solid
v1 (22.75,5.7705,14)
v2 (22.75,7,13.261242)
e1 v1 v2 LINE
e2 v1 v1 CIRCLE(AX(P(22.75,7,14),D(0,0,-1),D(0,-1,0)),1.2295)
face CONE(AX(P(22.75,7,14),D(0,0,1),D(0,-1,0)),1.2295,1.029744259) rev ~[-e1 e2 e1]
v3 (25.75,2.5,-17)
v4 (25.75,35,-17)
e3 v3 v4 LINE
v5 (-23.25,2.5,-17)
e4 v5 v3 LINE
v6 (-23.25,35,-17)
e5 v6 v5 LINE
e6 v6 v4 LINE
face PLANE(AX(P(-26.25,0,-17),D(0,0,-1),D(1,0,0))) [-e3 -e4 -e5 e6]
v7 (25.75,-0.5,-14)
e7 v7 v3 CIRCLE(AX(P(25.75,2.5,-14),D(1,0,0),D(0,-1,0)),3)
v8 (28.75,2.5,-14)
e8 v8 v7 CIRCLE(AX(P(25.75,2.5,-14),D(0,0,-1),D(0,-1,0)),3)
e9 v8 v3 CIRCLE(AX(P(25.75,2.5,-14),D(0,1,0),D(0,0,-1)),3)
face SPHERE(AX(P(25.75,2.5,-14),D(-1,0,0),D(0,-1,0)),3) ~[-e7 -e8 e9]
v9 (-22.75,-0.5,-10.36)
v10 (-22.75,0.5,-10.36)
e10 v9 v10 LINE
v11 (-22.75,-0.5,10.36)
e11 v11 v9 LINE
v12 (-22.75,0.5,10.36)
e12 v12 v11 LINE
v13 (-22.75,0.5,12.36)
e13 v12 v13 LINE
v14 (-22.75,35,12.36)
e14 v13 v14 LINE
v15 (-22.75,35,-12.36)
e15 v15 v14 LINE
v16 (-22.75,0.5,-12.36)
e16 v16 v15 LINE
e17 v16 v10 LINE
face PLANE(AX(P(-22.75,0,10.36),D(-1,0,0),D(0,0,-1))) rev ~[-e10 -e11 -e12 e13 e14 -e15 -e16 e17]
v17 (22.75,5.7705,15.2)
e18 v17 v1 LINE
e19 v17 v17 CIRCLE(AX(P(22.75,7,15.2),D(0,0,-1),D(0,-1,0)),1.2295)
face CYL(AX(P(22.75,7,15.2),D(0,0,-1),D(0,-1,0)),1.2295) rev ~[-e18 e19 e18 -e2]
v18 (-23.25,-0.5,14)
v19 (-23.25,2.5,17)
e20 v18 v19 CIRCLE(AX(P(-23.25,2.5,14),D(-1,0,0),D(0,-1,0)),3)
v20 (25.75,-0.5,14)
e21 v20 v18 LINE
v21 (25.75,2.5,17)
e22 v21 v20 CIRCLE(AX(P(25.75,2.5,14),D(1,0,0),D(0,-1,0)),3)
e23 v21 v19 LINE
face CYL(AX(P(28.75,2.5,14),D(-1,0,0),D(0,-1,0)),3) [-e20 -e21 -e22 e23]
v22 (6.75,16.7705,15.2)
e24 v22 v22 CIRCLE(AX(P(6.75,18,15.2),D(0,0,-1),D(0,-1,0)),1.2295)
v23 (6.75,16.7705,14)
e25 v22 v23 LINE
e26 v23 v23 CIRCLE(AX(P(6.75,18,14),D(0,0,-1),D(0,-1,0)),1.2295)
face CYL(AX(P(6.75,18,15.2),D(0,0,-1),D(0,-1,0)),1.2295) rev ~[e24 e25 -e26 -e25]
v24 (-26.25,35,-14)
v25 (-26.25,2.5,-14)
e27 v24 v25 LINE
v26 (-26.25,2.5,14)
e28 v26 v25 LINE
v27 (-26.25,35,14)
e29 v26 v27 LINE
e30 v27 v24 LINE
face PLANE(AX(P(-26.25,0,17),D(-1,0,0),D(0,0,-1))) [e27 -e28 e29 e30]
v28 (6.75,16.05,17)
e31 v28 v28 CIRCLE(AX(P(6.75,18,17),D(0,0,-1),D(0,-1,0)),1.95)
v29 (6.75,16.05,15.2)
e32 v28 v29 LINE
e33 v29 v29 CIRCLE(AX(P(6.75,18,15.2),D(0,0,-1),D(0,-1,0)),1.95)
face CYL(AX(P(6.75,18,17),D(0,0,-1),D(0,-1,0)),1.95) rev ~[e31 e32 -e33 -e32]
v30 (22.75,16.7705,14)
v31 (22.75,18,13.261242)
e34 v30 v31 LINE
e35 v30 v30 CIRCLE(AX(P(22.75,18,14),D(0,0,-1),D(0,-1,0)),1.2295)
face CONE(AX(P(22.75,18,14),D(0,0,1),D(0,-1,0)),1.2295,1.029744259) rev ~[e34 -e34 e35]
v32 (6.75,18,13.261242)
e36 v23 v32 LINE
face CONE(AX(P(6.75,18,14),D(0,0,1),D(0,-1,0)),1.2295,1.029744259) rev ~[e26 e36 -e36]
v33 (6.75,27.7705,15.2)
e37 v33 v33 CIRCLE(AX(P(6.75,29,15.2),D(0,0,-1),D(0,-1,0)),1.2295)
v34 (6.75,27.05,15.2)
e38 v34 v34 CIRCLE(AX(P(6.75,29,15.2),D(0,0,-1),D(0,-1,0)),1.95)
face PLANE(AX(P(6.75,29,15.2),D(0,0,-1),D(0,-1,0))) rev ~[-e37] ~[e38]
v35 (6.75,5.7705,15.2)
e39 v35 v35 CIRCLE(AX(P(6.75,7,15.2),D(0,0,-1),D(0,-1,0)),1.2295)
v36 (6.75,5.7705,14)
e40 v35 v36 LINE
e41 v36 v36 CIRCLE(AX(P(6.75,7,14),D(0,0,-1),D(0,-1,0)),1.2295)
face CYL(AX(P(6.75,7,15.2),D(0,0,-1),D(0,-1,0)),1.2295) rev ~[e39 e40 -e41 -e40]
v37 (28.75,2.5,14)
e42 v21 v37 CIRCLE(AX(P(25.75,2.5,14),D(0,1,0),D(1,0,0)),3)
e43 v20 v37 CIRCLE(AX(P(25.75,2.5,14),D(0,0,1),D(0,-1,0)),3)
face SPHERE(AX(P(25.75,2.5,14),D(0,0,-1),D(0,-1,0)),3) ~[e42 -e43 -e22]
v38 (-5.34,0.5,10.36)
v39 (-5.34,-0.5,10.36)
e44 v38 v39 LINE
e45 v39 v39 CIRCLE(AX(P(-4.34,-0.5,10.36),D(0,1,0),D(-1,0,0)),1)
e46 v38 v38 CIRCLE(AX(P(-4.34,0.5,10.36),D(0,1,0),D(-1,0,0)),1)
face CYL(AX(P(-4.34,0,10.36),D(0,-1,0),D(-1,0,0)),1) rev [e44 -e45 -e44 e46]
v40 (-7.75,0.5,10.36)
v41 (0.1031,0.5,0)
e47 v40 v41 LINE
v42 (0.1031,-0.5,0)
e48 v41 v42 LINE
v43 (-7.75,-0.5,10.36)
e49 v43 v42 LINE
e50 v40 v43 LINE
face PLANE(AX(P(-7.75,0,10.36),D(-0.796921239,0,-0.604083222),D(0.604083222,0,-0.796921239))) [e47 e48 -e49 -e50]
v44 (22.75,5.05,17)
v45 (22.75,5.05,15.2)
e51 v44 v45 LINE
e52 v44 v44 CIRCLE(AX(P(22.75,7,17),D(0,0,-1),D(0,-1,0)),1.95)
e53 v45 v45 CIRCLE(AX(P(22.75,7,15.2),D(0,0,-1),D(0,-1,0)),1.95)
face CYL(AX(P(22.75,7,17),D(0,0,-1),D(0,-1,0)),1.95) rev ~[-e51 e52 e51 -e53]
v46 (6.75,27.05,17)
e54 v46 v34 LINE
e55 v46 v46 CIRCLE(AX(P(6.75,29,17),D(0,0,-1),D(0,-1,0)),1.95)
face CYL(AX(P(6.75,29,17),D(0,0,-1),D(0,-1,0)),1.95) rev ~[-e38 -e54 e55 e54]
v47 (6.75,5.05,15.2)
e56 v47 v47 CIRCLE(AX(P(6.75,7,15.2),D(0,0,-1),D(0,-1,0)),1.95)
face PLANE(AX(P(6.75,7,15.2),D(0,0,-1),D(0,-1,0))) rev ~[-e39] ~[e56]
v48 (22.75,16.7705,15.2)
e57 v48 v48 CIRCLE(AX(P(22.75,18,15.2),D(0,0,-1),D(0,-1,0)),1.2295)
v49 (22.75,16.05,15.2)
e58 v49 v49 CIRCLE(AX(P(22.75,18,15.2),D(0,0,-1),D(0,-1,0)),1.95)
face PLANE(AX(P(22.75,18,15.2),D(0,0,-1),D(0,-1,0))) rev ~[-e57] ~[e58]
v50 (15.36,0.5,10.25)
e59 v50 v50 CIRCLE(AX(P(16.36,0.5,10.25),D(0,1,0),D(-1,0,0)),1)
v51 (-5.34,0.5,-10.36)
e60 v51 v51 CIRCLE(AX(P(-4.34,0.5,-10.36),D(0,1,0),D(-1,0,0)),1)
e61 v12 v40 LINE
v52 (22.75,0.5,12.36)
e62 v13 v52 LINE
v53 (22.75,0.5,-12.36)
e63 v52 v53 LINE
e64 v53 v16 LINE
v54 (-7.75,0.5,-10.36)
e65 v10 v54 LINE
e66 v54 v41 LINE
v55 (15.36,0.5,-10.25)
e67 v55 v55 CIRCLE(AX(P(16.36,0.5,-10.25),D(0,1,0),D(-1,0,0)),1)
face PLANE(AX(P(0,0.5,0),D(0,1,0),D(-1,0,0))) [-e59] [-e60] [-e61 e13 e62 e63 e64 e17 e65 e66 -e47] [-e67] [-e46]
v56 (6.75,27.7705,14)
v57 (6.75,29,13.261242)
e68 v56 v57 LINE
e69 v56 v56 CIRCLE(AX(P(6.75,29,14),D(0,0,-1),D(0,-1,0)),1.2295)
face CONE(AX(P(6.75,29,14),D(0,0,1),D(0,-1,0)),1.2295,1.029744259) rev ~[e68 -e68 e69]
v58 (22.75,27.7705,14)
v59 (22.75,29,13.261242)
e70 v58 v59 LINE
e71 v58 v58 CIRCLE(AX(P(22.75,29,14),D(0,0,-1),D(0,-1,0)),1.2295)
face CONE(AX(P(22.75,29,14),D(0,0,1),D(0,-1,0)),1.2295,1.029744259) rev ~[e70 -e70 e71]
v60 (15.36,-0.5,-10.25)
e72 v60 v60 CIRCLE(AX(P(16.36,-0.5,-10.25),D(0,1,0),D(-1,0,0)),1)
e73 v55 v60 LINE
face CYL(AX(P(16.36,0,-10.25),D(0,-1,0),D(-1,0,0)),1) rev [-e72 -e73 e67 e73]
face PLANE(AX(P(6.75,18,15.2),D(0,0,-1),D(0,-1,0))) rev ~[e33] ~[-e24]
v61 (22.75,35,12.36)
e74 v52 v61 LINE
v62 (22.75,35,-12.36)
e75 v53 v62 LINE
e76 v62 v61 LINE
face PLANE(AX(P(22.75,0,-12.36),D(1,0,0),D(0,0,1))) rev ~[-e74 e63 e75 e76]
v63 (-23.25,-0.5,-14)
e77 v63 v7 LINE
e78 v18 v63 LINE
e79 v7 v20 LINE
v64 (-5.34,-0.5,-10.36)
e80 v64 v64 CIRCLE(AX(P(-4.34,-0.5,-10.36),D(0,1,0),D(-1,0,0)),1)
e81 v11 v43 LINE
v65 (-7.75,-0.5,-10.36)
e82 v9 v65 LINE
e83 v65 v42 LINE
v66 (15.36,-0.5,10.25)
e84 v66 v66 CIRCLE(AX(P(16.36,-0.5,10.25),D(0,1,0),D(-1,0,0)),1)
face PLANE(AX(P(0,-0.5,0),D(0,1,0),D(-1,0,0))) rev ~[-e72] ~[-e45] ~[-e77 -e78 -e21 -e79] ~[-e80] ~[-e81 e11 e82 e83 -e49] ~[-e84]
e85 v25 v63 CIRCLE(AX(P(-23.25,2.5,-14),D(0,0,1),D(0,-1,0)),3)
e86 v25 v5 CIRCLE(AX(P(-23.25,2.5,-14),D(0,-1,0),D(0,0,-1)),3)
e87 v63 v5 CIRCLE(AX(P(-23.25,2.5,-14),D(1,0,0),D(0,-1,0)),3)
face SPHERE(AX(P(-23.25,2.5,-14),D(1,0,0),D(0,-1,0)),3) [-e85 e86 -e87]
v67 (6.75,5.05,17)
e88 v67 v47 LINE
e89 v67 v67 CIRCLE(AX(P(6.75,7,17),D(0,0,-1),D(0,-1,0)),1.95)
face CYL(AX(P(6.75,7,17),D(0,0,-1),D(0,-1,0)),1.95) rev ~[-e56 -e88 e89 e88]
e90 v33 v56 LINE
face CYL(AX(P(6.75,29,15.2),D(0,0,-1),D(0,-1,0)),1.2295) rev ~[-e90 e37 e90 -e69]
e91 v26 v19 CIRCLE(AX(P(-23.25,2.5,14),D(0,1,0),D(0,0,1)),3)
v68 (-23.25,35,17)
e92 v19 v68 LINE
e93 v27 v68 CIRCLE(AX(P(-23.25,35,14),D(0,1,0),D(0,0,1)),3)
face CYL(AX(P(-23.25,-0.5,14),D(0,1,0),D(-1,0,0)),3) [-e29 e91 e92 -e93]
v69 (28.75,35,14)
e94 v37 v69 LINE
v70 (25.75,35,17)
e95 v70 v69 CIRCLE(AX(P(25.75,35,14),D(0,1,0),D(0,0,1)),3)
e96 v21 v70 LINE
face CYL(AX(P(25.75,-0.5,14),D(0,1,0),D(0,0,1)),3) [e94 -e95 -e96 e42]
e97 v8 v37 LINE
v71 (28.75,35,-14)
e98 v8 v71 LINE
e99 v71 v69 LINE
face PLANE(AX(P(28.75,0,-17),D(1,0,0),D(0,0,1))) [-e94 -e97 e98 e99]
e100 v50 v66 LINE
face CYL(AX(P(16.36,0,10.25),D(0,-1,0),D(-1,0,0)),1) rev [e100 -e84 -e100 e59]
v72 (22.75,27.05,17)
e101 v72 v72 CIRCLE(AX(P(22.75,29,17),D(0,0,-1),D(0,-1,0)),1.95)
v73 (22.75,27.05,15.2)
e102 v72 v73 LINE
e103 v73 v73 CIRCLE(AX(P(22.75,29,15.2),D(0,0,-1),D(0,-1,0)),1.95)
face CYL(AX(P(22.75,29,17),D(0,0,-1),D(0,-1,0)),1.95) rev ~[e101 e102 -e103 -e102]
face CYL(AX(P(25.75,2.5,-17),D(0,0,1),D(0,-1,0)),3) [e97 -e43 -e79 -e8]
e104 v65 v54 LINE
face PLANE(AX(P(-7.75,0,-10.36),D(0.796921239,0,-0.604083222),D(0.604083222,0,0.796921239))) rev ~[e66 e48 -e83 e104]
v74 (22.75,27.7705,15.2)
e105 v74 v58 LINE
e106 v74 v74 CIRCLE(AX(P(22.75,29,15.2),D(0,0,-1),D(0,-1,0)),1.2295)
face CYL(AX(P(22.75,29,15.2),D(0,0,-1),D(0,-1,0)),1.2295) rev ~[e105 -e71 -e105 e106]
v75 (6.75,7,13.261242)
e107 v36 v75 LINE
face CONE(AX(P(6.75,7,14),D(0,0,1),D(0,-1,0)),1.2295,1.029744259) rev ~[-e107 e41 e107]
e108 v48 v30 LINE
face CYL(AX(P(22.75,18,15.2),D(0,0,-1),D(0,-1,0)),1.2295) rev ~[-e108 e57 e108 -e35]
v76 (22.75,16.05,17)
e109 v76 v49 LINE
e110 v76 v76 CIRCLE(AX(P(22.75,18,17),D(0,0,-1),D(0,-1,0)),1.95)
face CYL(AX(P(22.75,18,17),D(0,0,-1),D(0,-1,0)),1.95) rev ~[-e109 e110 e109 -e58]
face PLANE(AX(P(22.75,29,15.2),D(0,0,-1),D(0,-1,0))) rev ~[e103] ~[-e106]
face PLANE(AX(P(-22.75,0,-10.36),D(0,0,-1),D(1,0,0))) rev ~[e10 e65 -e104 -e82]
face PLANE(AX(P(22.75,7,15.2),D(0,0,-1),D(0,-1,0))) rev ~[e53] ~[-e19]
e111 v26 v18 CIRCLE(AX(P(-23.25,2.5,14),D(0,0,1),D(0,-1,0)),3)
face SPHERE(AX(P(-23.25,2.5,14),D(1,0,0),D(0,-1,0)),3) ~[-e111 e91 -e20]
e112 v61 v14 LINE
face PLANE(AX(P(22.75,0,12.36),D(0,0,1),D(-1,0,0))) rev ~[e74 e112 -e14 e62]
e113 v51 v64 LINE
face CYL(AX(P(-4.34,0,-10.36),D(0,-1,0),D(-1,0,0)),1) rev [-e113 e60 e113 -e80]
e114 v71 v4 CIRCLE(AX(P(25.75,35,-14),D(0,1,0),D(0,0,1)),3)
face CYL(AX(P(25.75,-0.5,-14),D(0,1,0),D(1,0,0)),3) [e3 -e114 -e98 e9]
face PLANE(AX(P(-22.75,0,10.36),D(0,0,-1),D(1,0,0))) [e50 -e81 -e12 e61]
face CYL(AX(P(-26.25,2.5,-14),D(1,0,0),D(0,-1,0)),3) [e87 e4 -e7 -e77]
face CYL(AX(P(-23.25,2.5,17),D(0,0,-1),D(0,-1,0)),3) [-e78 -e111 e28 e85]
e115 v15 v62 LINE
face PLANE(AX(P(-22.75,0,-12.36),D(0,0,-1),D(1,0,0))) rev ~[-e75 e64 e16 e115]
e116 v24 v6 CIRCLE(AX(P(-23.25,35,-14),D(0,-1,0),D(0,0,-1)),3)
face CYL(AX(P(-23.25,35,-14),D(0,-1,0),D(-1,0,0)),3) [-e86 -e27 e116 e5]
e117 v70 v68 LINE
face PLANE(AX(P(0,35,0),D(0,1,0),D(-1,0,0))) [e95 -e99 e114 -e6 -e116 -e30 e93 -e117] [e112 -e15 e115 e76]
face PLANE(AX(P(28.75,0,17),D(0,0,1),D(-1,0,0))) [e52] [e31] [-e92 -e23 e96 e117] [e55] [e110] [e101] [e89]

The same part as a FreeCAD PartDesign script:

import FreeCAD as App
import Part
import Sketcher

V = App.Vector


def edges_at(feature, points):
    """Names of the edges that pass closest to the given points."""
    edges = feature.Shape.Edges
    near = lambda p: min(range(len(edges)), key=lambda i: edges[i].distToShape(Part.Vertex(*p))[0])
    return sorted({f"Edge{near(p) + 1}" for p in points})

doc = App.newDocument("Part")
body = doc.addObject("PartDesign::Body", "Body")

# Sketch on XZ plane
sketch1 = body.newObject("Sketcher::SketchObject", "Sketch")
sketch1.AttachmentSupport = (doc.getObject("XZ_Plane"), [""])
sketch1.MapMode = "FlatFace"
sketch1.addGeometry(Part.LineSegment(V(-26.25, -17, 0), V(-26.25, 17, 0)), False)
sketch1.addGeometry(Part.LineSegment(V(-26.25, 17, 0), V(28.75, 17, 0)), False)
sketch1.addGeometry(Part.LineSegment(V(28.75, 17, 0), V(28.75, -17, 0)), False)
sketch1.addGeometry(Part.LineSegment(V(28.75, -17, 0), V(-26.25, -17, 0)), False)
sketch1.addGeometry(Part.LineSegment(V(-7.75, 10.36, 0), V(-22.75, 10.36, 0)), False)
sketch1.addGeometry(Part.LineSegment(V(-22.75, 10.36, 0), V(-22.75, -10.36, 0)), False)
sketch1.addGeometry(Part.LineSegment(V(-22.75, -10.36, 0), V(-7.75, -10.36, 0)), False)
sketch1.addGeometry(Part.LineSegment(V(-7.75, -10.36, 0), V(0.1031, 0, 0)), False)
sketch1.addGeometry(Part.LineSegment(V(0.1031, 0, 0), V(-7.75, 10.36, 0)), False)
sketch1.addGeometry(Part.Circle(V(16.36, -10.25, 0), V(0, 0, 1), 1), False)
sketch1.addGeometry(Part.Circle(V(-4.34, -10.36, 0), V(0, 0, 1), 1), False)
sketch1.addGeometry(Part.Circle(V(16.36, 10.25, 0), V(0, 0, 1), 1), False)
sketch1.addGeometry(Part.Circle(V(-4.34, 10.36, 0), V(0, 0, 1), 1), False)
sketch1.addConstraint(Sketcher.Constraint("Coincident", 0, 2, 1, 1))
sketch1.addConstraint(Sketcher.Constraint("Coincident", 1, 2, 2, 1))
sketch1.addConstraint(Sketcher.Constraint("Coincident", 2, 2, 3, 1))
sketch1.addConstraint(Sketcher.Constraint("Coincident", 3, 2, 0, 1))
sketch1.addConstraint(Sketcher.Constraint("Coincident", 4, 2, 5, 1))
sketch1.addConstraint(Sketcher.Constraint("Coincident", 5, 2, 6, 1))
sketch1.addConstraint(Sketcher.Constraint("Coincident", 6, 2, 7, 1))
sketch1.addConstraint(Sketcher.Constraint("Coincident", 7, 2, 8, 1))
sketch1.addConstraint(Sketcher.Constraint("Coincident", 8, 2, 4, 1))
sketch1.addConstraint(Sketcher.Constraint("Vertical", 0))
sketch1.addConstraint(Sketcher.Constraint("Horizontal", 1))
sketch1.addConstraint(Sketcher.Constraint("Vertical", 2))
sketch1.addConstraint(Sketcher.Constraint("Horizontal", 3))
sketch1.addConstraint(Sketcher.Constraint("Horizontal", 4))
sketch1.addConstraint(Sketcher.Constraint("Vertical", 5))
sketch1.addConstraint(Sketcher.Constraint("Horizontal", 6))
sketch1.addConstraint(Sketcher.Constraint("Equal", 9, 10))
sketch1.addConstraint(Sketcher.Constraint("Equal", 10, 11))
sketch1.addConstraint(Sketcher.Constraint("Equal", 11, 12))
sketch1.addConstraint(Sketcher.Constraint("Symmetric", 9, 3, 11, 3, -1))
sketch1.addConstraint(Sketcher.Constraint("Symmetric", 10, 3, 12, 3, -1))
sketch1.addConstraint(Sketcher.Constraint("Symmetric", 6, 2, 8, 2, -1))
sketch1.addConstraint(Sketcher.Constraint("PointOnObject", 7, 2, -1))
sketch1.addConstraint(Sketcher.Constraint("Horizontal", 12, 3, 4, 2))
sketch1.addConstraint(Sketcher.Constraint("Diameter", 9, 2.0))
sketch1.addConstraint(Sketcher.Constraint("DistanceX", 1, 1, 1, 2, 55.0))
sketch1.addConstraint(Sketcher.Constraint("DistanceX", 4, 2, 4, 1, 15.0))
sketch1.addConstraint(Sketcher.Constraint("DistanceY", 0, 1, 0, 2, 34.0))
sketch1.addConstraint(Sketcher.Constraint("Distance", 7, 13.0))
sketch1.addConstraint(Sketcher.Constraint("DistanceX", 10, 3, 9, 3, 20.7))
sketch1.addConstraint(Sketcher.Constraint("DistanceY", 9, 3, 11, 3, 20.5))
sketch1.addConstraint(Sketcher.Constraint("DistanceX", 0, 2, 4, 2, 3.5))
sketch1.addConstraint(Sketcher.Constraint("DistanceX", 4, 2, 12, 3, 18.41))
sketch1.addConstraint(Sketcher.Constraint("DistanceY", -1, 1, 0, 2, 17.0))
sketch1.addConstraint(Sketcher.Constraint("DistanceY", 5, 2, 5, 1, 20.72))
sketch1.addConstraint(Sketcher.Constraint("DistanceX", -1, 1, 9, 3, 16.36))
pad1 = body.newObject("PartDesign::Pad", "Pad")
pad1.Profile = sketch1
pad1.Length = 1
pad1.Midplane = True

# Sketch on XZ plane
sketch2 = body.newObject("Sketcher::SketchObject", "Sketch001")
sketch2.AttachmentSupport = (doc.getObject("XZ_Plane"), [""])
sketch2.MapMode = "FlatFace"
sketch2.addGeometry(Part.LineSegment(V(-26.25, -17, 0), V(-26.25, 17, 0)), False)
sketch2.addGeometry(Part.LineSegment(V(-26.25, 17, 0), V(28.75, 17, 0)), False)
sketch2.addGeometry(Part.LineSegment(V(28.75, 17, 0), V(28.75, -17, 0)), False)
sketch2.addGeometry(Part.LineSegment(V(28.75, -17, 0), V(-26.25, -17, 0)), False)
sketch2.addGeometry(Part.LineSegment(V(-22.75, 12.36, 0), V(-22.75, -12.36, 0)), False)
sketch2.addGeometry(Part.LineSegment(V(-22.75, -12.36, 0), V(22.75, -12.36, 0)), False)
sketch2.addGeometry(Part.LineSegment(V(22.75, -12.36, 0), V(22.75, 12.36, 0)), False)
sketch2.addGeometry(Part.LineSegment(V(22.75, 12.36, 0), V(-22.75, 12.36, 0)), False)
sketch2.addConstraint(Sketcher.Constraint("Coincident", 0, 2, 1, 1))
sketch2.addConstraint(Sketcher.Constraint("Coincident", 1, 2, 2, 1))
sketch2.addConstraint(Sketcher.Constraint("Coincident", 2, 2, 3, 1))
sketch2.addConstraint(Sketcher.Constraint("Coincident", 3, 2, 0, 1))
sketch2.addConstraint(Sketcher.Constraint("Coincident", 4, 2, 5, 1))
sketch2.addConstraint(Sketcher.Constraint("Coincident", 5, 2, 6, 1))
sketch2.addConstraint(Sketcher.Constraint("Coincident", 6, 2, 7, 1))
sketch2.addConstraint(Sketcher.Constraint("Coincident", 7, 2, 4, 1))
sketch2.addConstraint(Sketcher.Constraint("Vertical", 0))
sketch2.addConstraint(Sketcher.Constraint("Horizontal", 1))
sketch2.addConstraint(Sketcher.Constraint("Vertical", 2))
sketch2.addConstraint(Sketcher.Constraint("Horizontal", 3))
sketch2.addConstraint(Sketcher.Constraint("Vertical", 4))
sketch2.addConstraint(Sketcher.Constraint("Horizontal", 5))
sketch2.addConstraint(Sketcher.Constraint("Vertical", 6))
sketch2.addConstraint(Sketcher.Constraint("Horizontal", 7))
sketch2.addConstraint(Sketcher.Constraint("Symmetric", 4, 2, 6, 2, -1, 1))
sketch2.addConstraint(Sketcher.Constraint("DistanceX", 1, 1, 1, 2, 55.0))
sketch2.addConstraint(Sketcher.Constraint("DistanceY", 0, 1, 0, 2, 34.0))
sketch2.addConstraint(Sketcher.Constraint("DistanceX", 5, 1, 5, 2, 45.5))
sketch2.addConstraint(Sketcher.Constraint("DistanceY", 4, 2, 4, 1, 24.72))
sketch2.addConstraint(Sketcher.Constraint("DistanceX", 3, 2, 4, 2, 3.5))
sketch2.addConstraint(Sketcher.Constraint("DistanceY", -1, 1, 0, 2, 17.0))
pad2 = body.newObject("PartDesign::Pad", "Pad001")
pad2.Profile = sketch2
pad2.Length = 35
pad2.Reversed = True
doc.recompute()

fillet = body.newObject("PartDesign::Fillet", "Fillet")
fillet.Base = (pad2, edges_at(pad2, [
    (1.25, -0.5, -17),
    (28.75, -0.5, 0),
    (1.25, -0.5, 17),
    (-26.25, -0.5, 0),
    (28.75, 17.25, -17),
    (28.75, 17.25, 17),
    (-26.25, 17.25, 17),
    (-26.25, 17.25, -17),
]))
fillet.Radius = 3

# Sketch on XY plane
sketch3 = body.newObject("Sketcher::SketchObject", "Sketch002")
sketch3.AttachmentSupport = (doc.getObject("XY_Plane"), [""])
sketch3.MapMode = "FlatFace"
sketch3.AttachmentOffset = App.Placement(V(0, 0, 17), App.Rotation())
sketch3.addGeometry(Part.Circle(V(22.75, 7, 0), V(0, 0, 1), 1.2295), False)
sketch3.addGeometry(Part.Circle(V(6.75, 7, 0), V(0, 0, 1), 1.2295), False)
sketch3.addGeometry(Part.Circle(V(6.75, 18, 0), V(0, 0, 1), 1.2295), False)
sketch3.addGeometry(Part.Circle(V(22.75, 18, 0), V(0, 0, 1), 1.2295), False)
sketch3.addGeometry(Part.Circle(V(22.75, 29, 0), V(0, 0, 1), 1.2295), False)
sketch3.addGeometry(Part.Circle(V(6.75, 29, 0), V(0, 0, 1), 1.2295), False)
sketch3.addConstraint(Sketcher.Constraint("Equal", 0, 1))
sketch3.addConstraint(Sketcher.Constraint("Equal", 1, 2))
sketch3.addConstraint(Sketcher.Constraint("Equal", 2, 3))
sketch3.addConstraint(Sketcher.Constraint("Equal", 3, 4))
sketch3.addConstraint(Sketcher.Constraint("Equal", 4, 5))
sketch3.addConstraint(Sketcher.Constraint("Horizontal", 0, 3, 1, 3))
sketch3.addConstraint(Sketcher.Constraint("Horizontal", 2, 3, 3, 3))
sketch3.addConstraint(Sketcher.Constraint("Horizontal", 4, 3, 5, 3))
sketch3.addConstraint(Sketcher.Constraint("Vertical", 1, 3, 2, 3))
sketch3.addConstraint(Sketcher.Constraint("Vertical", 0, 3, 3, 3))
sketch3.addConstraint(Sketcher.Constraint("Vertical", 3, 3, 4, 3))
sketch3.addConstraint(Sketcher.Constraint("Vertical", 2, 3, 5, 3))
sketch3.addConstraint(Sketcher.Constraint("Diameter", 0, 2.459))
sketch3.addConstraint(Sketcher.Constraint("DistanceY", -1, 1, 0, 3, 7.0))
sketch3.addConstraint(Sketcher.Constraint("DistanceY", -1, 1, 2, 3, 18.0))
sketch3.addConstraint(Sketcher.Constraint("DistanceY", -1, 1, 4, 3, 29.0))
sketch3.addConstraint(Sketcher.Constraint("DistanceX", 1, 3, 0, 3, 16.0))
sketch3.addConstraint(Sketcher.Constraint("DistanceX", -1, 1, 0, 3, 22.75))
doc.recompute()
hole = body.newObject("PartDesign::Hole", "Hole")
hole.Profile = sketch3
hole.ThreadType = "None"
hole.Diameter = 2.459
hole.DepthType = "Dimension"
hole.Depth = 3
hole.DrillPoint = "Angled"
hole.DrillPointAngle = 118
hole.HoleCutType = "Counterbore"
hole.HoleCutDiameter = 3.9
hole.HoleCutDepth = 1.8

doc.recompute()
